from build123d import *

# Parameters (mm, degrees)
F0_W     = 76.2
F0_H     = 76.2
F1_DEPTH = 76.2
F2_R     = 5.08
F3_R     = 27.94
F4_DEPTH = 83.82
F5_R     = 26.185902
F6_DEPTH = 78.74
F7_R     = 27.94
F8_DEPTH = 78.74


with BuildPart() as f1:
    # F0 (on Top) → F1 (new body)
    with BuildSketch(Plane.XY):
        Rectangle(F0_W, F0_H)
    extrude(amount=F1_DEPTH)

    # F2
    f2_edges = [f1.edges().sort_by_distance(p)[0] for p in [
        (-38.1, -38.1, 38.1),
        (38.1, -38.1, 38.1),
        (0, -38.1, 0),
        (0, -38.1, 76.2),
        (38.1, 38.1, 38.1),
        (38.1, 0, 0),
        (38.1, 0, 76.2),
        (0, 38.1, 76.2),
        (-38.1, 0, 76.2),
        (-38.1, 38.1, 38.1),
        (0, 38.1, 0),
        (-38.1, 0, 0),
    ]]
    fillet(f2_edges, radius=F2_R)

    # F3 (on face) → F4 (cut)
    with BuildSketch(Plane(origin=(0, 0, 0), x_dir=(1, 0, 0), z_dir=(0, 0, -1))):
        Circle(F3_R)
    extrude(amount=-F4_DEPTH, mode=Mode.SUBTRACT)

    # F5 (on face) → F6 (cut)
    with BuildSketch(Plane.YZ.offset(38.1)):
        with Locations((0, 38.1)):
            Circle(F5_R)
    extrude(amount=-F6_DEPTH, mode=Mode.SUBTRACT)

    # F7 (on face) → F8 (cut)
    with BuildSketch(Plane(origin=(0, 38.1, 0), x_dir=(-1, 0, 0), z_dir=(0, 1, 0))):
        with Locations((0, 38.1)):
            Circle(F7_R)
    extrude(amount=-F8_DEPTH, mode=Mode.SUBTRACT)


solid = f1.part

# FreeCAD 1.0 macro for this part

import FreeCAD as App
import Part
import Sketcher
from FreeCAD import Vector
Q = App.Units.Quantity

doc = App.newDocument("Part")
body = doc.addObject("PartDesign::Body", "Body")

# Sketch on XY plane
sketch1 = body.newObject("Sketcher::SketchObject", "Sketch")
sketch1.AttachmentSupport = (doc.getObject("XY_Plane"), [""])
sketch1.MapMode = "FlatFace"
sketch1.addGeometry(Part.LineSegment(Vector(-38, 38, 0), Vector(-38, -38, 0)), False)
sketch1.addGeometry(Part.LineSegment(Vector(-38, -38, 0), Vector(38, -38, 0)), False)
sketch1.addGeometry(Part.LineSegment(Vector(38, -38, 0), Vector(38, 38, 0)), False)
sketch1.addGeometry(Part.LineSegment(Vector(38, 38, 0), Vector(-38, 38, 0)), False)
sketch1.addConstraint(Sketcher.Constraint("Coincident", 0, 2, 1, 1))
sketch1.addConstraint(Sketcher.Constraint("Coincident", 1, 2, 2, 1))
sketch1.addConstraint(Sketcher.Constraint("Coincident", 2, 2, 3, 1))
sketch1.addConstraint(Sketcher.Constraint("Coincident", 3, 2, 0, 1))
sketch1.addConstraint(Sketcher.Constraint("Vertical", 0))
sketch1.addConstraint(Sketcher.Constraint("Horizontal", 1))
sketch1.addConstraint(Sketcher.Constraint("Vertical", 2))
sketch1.addConstraint(Sketcher.Constraint("Horizontal", 3))
sketch1.addConstraint(Sketcher.Constraint("Symmetric", 0, 2, 2, 2, -1, 1))
sketch1.addConstraint(Sketcher.Constraint("Equal", 3, 0))
sketch1.addConstraint(Sketcher.Constraint("DistanceX", 1, 1, 1, 2, Q("3 in")))
pad1 = body.newObject("PartDesign::Pad", "Pad")
pad1.Profile = sketch1
pad1.Length = Q("3 in")
doc.recompute()

fillet = body.newObject("PartDesign::Fillet", "Fillet")
fillet.Base = (pad1, ["Edge1"])
fillet.UseAllEdges = True
fillet.Radius = Q("0.2 in")

# Sketch on XY plane
sketch2 = body.newObject("Sketcher::SketchObject", "Sketch001")
sketch2.AttachmentSupport = (doc.getObject("XY_Plane"), [""])
sketch2.MapMode = "FlatFace"
sketch2.addGeometry(Part.Circle(Vector(0, 0, 0), Vector(0, 0, 1), 28), False)
sketch2.addConstraint(Sketcher.Constraint("Coincident", 0, 3, -1, 1))
sketch2.addConstraint(Sketcher.Constraint("Diameter", 0, Q("2.2 in")))
pocket1 = body.newObject("PartDesign::Pocket", "Pocket")
pocket1.Profile = sketch2
pocket1.Length = Q("3.3 in")
pocket1.Reversed = True

# Sketch on YZ plane
sketch3 = body.newObject("Sketcher::SketchObject", "Sketch002")
sketch3.AttachmentSupport = (doc.getObject("YZ_Plane"), [""])
sketch3.MapMode = "FlatFace"
sketch3.AttachmentOffset = App.Placement(Vector(0, 0, 1.5 * 25.4), App.Rotation())
sketch3.addGeometry(Part.Circle(Vector(0, 38, 0), Vector(0, 0, 1), 26), False)
sketch3.addConstraint(Sketcher.Constraint("PointOnObject", 0, 3, -2))
sketch3.addConstraint(Sketcher.Constraint("DistanceY", -1, 1, 0, 3, Q("1.5 in")))
sketch3.addConstraint(Sketcher.Constraint("Diameter", 0, Q("52.371804 mm")))
pocket2 = body.newObject("PartDesign::Pocket", "Pocket001")
pocket2.Profile = sketch3
pocket2.Length = Q("3.1 in")

# Sketch on XZ plane
sketch4 = body.newObject("Sketcher::SketchObject", "Sketch003")
sketch4.AttachmentSupport = (doc.getObject("XZ_Plane"), [""])
sketch4.MapMode = "FlatFace"
sketch4.AttachmentOffset = App.Placement(Vector(0, 0, -1.5 * 25.4), App.Rotation())
sketch4.addGeometry(Part.Circle(Vector(0, 38, 0), Vector(0, 0, 1), 28), False)
sketch4.addConstraint(Sketcher.Constraint("PointOnObject", 0, 3, -2))
sketch4.addConstraint(Sketcher.Constraint("Diameter", 0, Q("2.2 in")))
sketch4.addConstraint(Sketcher.Constraint("DistanceY", -1, 1, 0, 3, Q("1.5 in")))
pocket3 = body.newObject("PartDesign::Pocket", "Pocket002")
pocket3.Profile = sketch4
pocket3.Length = Q("3.1 in")
pocket3.Reversed = True

doc.recompute()
